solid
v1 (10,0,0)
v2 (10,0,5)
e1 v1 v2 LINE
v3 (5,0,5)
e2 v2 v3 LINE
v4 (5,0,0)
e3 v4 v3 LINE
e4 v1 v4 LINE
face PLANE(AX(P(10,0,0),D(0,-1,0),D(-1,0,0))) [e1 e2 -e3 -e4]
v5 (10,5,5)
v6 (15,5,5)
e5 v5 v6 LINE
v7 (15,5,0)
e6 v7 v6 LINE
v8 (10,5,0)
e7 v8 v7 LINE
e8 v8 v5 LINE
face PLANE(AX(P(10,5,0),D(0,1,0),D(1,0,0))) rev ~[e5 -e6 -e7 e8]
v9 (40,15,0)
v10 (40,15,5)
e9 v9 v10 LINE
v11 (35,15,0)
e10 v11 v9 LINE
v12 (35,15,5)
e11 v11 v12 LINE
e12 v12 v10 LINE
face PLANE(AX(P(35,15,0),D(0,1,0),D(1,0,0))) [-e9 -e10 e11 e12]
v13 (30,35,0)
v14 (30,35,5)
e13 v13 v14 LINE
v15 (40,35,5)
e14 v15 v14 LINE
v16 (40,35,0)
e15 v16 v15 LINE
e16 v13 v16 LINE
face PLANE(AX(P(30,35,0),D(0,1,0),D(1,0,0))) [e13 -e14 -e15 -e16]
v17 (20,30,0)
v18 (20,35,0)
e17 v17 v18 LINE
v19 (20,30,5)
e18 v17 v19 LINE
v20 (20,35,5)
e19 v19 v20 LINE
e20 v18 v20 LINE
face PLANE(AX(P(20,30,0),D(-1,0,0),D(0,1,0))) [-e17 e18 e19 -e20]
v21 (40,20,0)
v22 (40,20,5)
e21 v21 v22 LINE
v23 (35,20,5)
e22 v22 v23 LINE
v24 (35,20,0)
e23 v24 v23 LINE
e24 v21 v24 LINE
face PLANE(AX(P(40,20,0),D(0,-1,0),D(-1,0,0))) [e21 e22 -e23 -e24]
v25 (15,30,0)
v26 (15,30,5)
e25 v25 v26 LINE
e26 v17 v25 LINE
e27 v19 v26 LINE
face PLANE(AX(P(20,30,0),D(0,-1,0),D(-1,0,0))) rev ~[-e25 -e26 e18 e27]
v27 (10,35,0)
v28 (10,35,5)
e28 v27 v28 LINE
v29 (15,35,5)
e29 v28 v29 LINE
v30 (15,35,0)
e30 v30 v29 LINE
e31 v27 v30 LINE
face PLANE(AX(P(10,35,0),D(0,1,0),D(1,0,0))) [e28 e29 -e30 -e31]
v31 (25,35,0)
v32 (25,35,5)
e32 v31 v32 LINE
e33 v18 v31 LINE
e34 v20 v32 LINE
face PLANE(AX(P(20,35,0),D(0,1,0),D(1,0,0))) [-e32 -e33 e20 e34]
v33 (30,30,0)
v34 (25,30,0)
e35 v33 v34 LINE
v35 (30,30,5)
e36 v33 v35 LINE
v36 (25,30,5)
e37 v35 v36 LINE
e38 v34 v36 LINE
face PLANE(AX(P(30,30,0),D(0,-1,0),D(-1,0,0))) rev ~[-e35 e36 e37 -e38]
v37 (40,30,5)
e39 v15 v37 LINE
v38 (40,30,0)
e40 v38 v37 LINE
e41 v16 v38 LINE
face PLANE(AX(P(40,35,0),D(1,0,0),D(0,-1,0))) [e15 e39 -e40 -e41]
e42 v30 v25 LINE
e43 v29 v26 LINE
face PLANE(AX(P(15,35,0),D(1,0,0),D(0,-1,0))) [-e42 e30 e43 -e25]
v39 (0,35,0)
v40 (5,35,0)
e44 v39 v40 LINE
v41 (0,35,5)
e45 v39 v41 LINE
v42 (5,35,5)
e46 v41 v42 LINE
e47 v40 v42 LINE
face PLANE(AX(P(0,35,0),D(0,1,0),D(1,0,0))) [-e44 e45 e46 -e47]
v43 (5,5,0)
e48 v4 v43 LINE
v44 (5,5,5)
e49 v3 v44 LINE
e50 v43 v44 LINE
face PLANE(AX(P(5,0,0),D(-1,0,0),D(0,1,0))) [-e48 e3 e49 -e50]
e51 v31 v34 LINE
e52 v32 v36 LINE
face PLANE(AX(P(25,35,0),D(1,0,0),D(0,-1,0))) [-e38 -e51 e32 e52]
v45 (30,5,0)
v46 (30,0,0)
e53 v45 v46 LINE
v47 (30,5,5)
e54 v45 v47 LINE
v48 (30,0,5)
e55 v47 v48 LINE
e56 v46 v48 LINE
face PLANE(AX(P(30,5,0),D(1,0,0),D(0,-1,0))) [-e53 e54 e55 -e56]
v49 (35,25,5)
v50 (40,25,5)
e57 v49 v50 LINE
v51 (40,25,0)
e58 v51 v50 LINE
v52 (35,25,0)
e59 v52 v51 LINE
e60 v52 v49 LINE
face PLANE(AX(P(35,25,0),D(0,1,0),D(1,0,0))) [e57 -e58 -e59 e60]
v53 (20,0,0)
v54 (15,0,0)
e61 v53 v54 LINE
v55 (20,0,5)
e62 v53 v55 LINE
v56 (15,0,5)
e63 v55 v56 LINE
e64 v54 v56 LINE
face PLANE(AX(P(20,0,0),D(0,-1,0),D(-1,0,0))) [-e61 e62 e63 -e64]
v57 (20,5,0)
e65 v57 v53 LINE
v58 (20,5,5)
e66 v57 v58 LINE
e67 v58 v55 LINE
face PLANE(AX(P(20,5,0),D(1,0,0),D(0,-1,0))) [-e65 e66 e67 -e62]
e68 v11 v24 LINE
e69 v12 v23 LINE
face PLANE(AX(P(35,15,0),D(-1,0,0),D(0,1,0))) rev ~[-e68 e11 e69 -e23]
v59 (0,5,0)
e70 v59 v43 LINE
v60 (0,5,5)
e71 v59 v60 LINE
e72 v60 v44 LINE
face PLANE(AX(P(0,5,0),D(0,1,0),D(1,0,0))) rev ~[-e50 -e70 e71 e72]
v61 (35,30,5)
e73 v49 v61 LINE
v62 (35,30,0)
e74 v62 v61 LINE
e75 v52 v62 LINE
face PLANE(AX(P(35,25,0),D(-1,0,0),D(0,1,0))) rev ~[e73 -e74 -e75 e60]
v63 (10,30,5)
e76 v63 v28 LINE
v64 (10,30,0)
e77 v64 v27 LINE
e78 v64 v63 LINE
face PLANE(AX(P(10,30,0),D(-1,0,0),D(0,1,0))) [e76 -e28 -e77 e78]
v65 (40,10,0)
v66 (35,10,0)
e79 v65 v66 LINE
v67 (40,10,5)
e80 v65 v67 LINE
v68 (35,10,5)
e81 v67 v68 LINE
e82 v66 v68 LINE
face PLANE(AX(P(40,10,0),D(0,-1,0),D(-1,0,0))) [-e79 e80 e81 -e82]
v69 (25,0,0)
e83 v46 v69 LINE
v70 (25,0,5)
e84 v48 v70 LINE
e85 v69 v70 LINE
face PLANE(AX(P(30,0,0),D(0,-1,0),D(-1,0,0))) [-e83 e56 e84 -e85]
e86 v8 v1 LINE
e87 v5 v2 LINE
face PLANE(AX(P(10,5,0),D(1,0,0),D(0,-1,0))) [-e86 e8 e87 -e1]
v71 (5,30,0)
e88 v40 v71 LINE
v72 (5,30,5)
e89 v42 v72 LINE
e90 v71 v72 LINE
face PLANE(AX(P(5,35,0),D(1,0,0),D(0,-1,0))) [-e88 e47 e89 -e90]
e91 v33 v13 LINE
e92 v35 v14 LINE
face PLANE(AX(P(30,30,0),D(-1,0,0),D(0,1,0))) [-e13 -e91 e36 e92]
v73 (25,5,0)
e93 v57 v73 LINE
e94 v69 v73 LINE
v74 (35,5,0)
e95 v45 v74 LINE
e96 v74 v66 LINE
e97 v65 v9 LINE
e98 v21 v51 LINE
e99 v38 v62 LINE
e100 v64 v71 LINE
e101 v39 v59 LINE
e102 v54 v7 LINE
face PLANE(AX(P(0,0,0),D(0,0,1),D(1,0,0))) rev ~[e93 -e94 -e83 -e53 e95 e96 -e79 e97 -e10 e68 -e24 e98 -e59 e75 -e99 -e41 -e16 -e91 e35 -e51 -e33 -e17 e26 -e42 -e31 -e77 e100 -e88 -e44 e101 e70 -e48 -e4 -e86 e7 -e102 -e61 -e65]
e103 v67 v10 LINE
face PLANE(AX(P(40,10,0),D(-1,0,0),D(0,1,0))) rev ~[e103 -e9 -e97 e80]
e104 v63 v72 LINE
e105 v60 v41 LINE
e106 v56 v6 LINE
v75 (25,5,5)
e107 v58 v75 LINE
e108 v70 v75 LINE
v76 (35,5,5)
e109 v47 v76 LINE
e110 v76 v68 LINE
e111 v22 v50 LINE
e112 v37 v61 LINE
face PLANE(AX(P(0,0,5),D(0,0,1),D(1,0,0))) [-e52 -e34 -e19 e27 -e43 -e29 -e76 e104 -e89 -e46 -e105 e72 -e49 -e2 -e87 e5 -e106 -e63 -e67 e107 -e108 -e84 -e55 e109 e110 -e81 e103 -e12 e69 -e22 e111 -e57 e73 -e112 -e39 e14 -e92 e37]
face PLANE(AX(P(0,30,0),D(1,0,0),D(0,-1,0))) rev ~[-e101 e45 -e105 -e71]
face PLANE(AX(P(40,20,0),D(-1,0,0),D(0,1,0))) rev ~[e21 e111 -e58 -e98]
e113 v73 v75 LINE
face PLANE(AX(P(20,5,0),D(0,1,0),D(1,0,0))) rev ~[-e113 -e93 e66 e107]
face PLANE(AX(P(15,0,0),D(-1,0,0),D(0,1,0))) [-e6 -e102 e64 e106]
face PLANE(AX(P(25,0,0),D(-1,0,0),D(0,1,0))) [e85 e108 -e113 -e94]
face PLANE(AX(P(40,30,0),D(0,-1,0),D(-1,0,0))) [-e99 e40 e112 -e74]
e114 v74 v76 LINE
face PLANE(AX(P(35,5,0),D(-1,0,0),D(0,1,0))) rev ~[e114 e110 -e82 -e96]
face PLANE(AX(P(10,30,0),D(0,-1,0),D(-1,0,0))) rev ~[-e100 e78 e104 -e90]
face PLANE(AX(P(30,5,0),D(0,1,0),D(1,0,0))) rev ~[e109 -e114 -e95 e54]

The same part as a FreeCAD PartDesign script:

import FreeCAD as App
import Part
import Sketcher

V = App.Vector
Q = App.Units.Quantity

doc = App.newDocument("Part")
body = doc.addObject("PartDesign::Body", "Body")

# Sketch on XY plane
sketch1 = body.newObject("Sketcher::SketchObject", "Sketch")
sketch1.AttachmentSupport = (doc.getObject("XY_Plane"), [""])
sketch1.MapMode = "FlatFace"
sketch1.addGeometry([
    Part.LineSegment(V(0, 5, 0), V(5, 5, 0)),  # 0
    Part.LineSegment(V(5, 5, 0), V(5, 0, 0)),  # 1
    Part.LineSegment(V(5, 0, 0), V(10, 0, 0)),  # 2
    Part.LineSegment(V(10, 0, 0), V(10, 5, 0)),  # 3
    Part.LineSegment(V(10, 5, 0), V(15, 5, 0)),  # 4
    Part.LineSegment(V(15, 5, 0), V(15, 0, 0)),  # 5
    Part.LineSegment(V(15, 0, 0), V(20, 0, 0)),  # 6
    Part.LineSegment(V(20, 0, 0), V(20, 5, 0)),  # 7
    Part.LineSegment(V(20, 5, 0), V(25, 5, 0)),  # 8
    Part.LineSegment(V(25, 5, 0), V(25, 0, 0)),  # 9
    Part.LineSegment(V(25, 0, 0), V(30, 0, 0)),  # 10
    Part.LineSegment(V(30, 0, 0), V(30, 5, 0)),  # 11
    Part.LineSegment(V(30, 5, 0), V(35, 5, 0)),  # 12
    Part.LineSegment(V(35, 5, 0), V(35, 10, 0)),  # 13
    Part.LineSegment(V(35, 10, 0), V(40, 10, 0)),  # 14
    Part.LineSegment(V(40, 10, 0), V(40, 15, 0)),  # 15
    Part.LineSegment(V(40, 15, 0), V(35, 15, 0)),  # 16
    Part.LineSegment(V(35, 15, 0), V(35, 20, 0)),  # 17
    Part.LineSegment(V(35, 20, 0), V(40, 20, 0)),  # 18
    Part.LineSegment(V(40, 20, 0), V(40, 25, 0)),  # 19
    Part.LineSegment(V(40, 25, 0), V(35, 25, 0)),  # 20
    Part.LineSegment(V(35, 25, 0), V(35, 30, 0)),  # 21
    Part.LineSegment(V(35, 30, 0), V(40, 30, 0)),  # 22
    Part.LineSegment(V(40, 30, 0), V(40, 35, 0)),  # 23
    Part.LineSegment(V(40, 35, 0), V(30, 35, 0)),  # 24
    Part.LineSegment(V(30, 35, 0), V(30, 30, 0)),  # 25
    Part.LineSegment(V(30, 30, 0), V(25, 30, 0)),  # 26
    Part.LineSegment(V(25, 30, 0), V(25, 35, 0)),  # 27
    Part.LineSegment(V(25, 35, 0), V(20, 35, 0)),  # 28
    Part.LineSegment(V(20, 35, 0), V(20, 30, 0)),  # 29
    Part.LineSegment(V(20, 30, 0), V(15, 30, 0)),  # 30
    Part.LineSegment(V(15, 30, 0), V(15, 35, 0)),  # 31
    Part.LineSegment(V(15, 35, 0), V(10, 35, 0)),  # 32
    Part.LineSegment(V(10, 35, 0), V(10, 30, 0)),  # 33
    Part.LineSegment(V(10, 30, 0), V(5, 30, 0)),  # 34
    Part.LineSegment(V(5, 30, 0), V(5, 35, 0)),  # 35
    Part.LineSegment(V(5, 35, 0), V(0, 35, 0)),  # 36
    Part.LineSegment(V(0, 35, 0), V(0, 5, 0)),  # 37
], False)
sketch1.addConstraint([
    Sketcher.Constraint("Coincident", 0, 2, 1, 1),
    Sketcher.Constraint("Coincident", 1, 2, 2, 1),
    Sketcher.Constraint("Coincident", 2, 2, 3, 1),
    Sketcher.Constraint("Coincident", 3, 2, 4, 1),
    Sketcher.Constraint("Coincident", 4, 2, 5, 1),
    Sketcher.Constraint("Coincident", 5, 2, 6, 1),
    Sketcher.Constraint("Coincident", 6, 2, 7, 1),
    Sketcher.Constraint("Coincident", 7, 2, 8, 1),
    Sketcher.Constraint("Coincident", 8, 2, 9, 1),
    Sketcher.Constraint("Coincident", 9, 2, 10, 1),
    Sketcher.Constraint("Coincident", 10, 2, 11, 1),
    Sketcher.Constraint("Coincident", 11, 2, 12, 1),
    Sketcher.Constraint("Coincident", 12, 2, 13, 1),
    Sketcher.Constraint("Coincident", 13, 2, 14, 1),
    Sketcher.Constraint("Coincident", 14, 2, 15, 1),
    Sketcher.Constraint("Coincident", 15, 2, 16, 1),
    Sketcher.Constraint("Coincident", 16, 2, 17, 1),
    Sketcher.Constraint("Coincident", 17, 2, 18, 1),
    Sketcher.Constraint("Coincident", 18, 2, 19, 1),
    Sketcher.Constraint("Coincident", 19, 2, 20, 1),
    Sketcher.Constraint("Coincident", 20, 2, 21, 1),
    Sketcher.Constraint("Coincident", 21, 2, 22, 1),
    Sketcher.Constraint("Coincident", 22, 2, 23, 1),
    Sketcher.Constraint("Coincident", 23, 2, 24, 1),
    Sketcher.Constraint("Coincident", 24, 2, 25, 1),
    Sketcher.Constraint("Coincident", 25, 2, 26, 1),
    Sketcher.Constraint("Coincident", 26, 2, 27, 1),
    Sketcher.Constraint("Coincident", 27, 2, 28, 1),
    Sketcher.Constraint("Coincident", 28, 2, 29, 1),
    Sketcher.Constraint("Coincident", 29, 2, 30, 1),
    Sketcher.Constraint("Coincident", 30, 2, 31, 1),
    Sketcher.Constraint("Coincident", 31, 2, 32, 1),
    Sketcher.Constraint("Coincident", 32, 2, 33, 1),
    Sketcher.Constraint("Coincident", 33, 2, 34, 1),
    Sketcher.Constraint("Coincident", 34, 2, 35, 1),
    Sketcher.Constraint("Coincident", 35, 2, 36, 1),
    Sketcher.Constraint("Coincident", 36, 2, 37, 1),
    Sketcher.Constraint("Coincident", 37, 2, 0, 1),
    Sketcher.Constraint("Horizontal", 0),
    Sketcher.Constraint("Vertical", 1),
    Sketcher.Constraint("Horizontal", 2),
    Sketcher.Constraint("Vertical", 3),
    Sketcher.Constraint("Horizontal", 4),
    Sketcher.Constraint("Vertical", 5),
    Sketcher.Constraint("Horizontal", 6),
    Sketcher.Constraint("Vertical", 7),
    Sketcher.Constraint("Horizontal", 8),
    Sketcher.Constraint("Vertical", 9),
    Sketcher.Constraint("Horizontal", 10),
    Sketcher.Constraint("Vertical", 11),
    Sketcher.Constraint("Horizontal", 12),
    Sketcher.Constraint("Vertical", 13),
    Sketcher.Constraint("Horizontal", 14),
    Sketcher.Constraint("Vertical", 15),
    Sketcher.Constraint("Horizontal", 16),
    Sketcher.Constraint("Vertical", 17),
    Sketcher.Constraint("Horizontal", 18),
    Sketcher.Constraint("Vertical", 19),
    Sketcher.Constraint("Horizontal", 20),
    Sketcher.Constraint("Vertical", 21),
    Sketcher.Constraint("Horizontal", 22),
    Sketcher.Constraint("Vertical", 23),
    Sketcher.Constraint("Horizontal", 24),
    Sketcher.Constraint("Vertical", 25),
    Sketcher.Constraint("Horizontal", 26),
    Sketcher.Constraint("Vertical", 27),
    Sketcher.Constraint("Horizontal", 28),
    Sketcher.Constraint("Vertical", 29),
    Sketcher.Constraint("Horizontal", 30),
    Sketcher.Constraint("Vertical", 31),
    Sketcher.Constraint("Horizontal", 32),
    Sketcher.Constraint("Vertical", 33),
    Sketcher.Constraint("Horizontal", 34),
    Sketcher.Constraint("Vertical", 35),
    Sketcher.Constraint("Horizontal", 36),
    Sketcher.Constraint("Vertical", 37),
    Sketcher.Constraint("PointOnObject", 1, 2, -1),
    Sketcher.Constraint("PointOnObject", 5, 2, -1),
    Sketcher.Constraint("PointOnObject", 9, 2, -1),
    Sketcher.Constraint("PointOnObject", 36, 2, -2),
    Sketcher.Constraint("Horizontal", 0, 2, 3, 2),
    Sketcher.Constraint("Horizontal", 4, 2, 7, 2),
    Sketcher.Constraint("Horizontal", 8, 2, 11, 2),
    Sketcher.Constraint("Horizontal", 22, 2, 25, 2),
    Sketcher.Constraint("Horizontal", 24, 2, 27, 2),
    Sketcher.Constraint("Horizontal", 26, 2, 29, 2),
    Sketcher.Constraint("Horizontal", 28, 2, 31, 2),
    Sketcher.Constraint("Horizontal", 30, 2, 33, 2),
    Sketcher.Constraint("Horizontal", 32, 2, 35, 2),
    Sketcher.Constraint("Vertical", 13, 2, 16, 2),
    Sketcher.Constraint("Vertical", 15, 2, 18, 2),
    Sketcher.Constraint("Vertical", 17, 2, 20, 2),
    Sketcher.Constraint("Vertical", 19, 2, 22, 2),
    Sketcher.Constraint("Vertical", 11, 2, 24, 2),
    Sketcher.Constraint("Vertical", 9, 2, 26, 2),
    Sketcher.Constraint("Vertical", 7, 2, 28, 2),
    Sketcher.Constraint("Vertical", 5, 2, 30, 2),
    Sketcher.Constraint("Vertical", 3, 2, 32, 2),
    Sketcher.Constraint("Vertical", 1, 2, 34, 2),
    Sketcher.Constraint("Equal", 0, 2),
    Sketcher.Constraint("Equal", 2, 4),
    Sketcher.Constraint("Equal", 4, 6),
    Sketcher.Constraint("Equal", 6, 8),
    Sketcher.Constraint("Equal", 8, 10),
    Sketcher.Constraint("Equal", 10, 12),
    Sketcher.Constraint("Equal", 12, 14),
    Sketcher.Constraint("Equal", 36, 1),
    Sketcher.Constraint("Equal", 11, 13),
    Sketcher.Constraint("Equal", 13, 15),
    Sketcher.Constraint("Equal", 15, 17),
    Sketcher.Constraint("Equal", 17, 19),
    Sketcher.Constraint("Equal", 19, 21),
    Sketcher.Constraint("Equal", 21, 23),
    Sketcher.Constraint("DistanceX", 24, 2, 24, 1, Q("10 mm")),
])
pad1 = body.newObject("PartDesign::Pad", "Pad")
pad1.Profile = sketch1
pad1.Length = 5

doc.recompute()
